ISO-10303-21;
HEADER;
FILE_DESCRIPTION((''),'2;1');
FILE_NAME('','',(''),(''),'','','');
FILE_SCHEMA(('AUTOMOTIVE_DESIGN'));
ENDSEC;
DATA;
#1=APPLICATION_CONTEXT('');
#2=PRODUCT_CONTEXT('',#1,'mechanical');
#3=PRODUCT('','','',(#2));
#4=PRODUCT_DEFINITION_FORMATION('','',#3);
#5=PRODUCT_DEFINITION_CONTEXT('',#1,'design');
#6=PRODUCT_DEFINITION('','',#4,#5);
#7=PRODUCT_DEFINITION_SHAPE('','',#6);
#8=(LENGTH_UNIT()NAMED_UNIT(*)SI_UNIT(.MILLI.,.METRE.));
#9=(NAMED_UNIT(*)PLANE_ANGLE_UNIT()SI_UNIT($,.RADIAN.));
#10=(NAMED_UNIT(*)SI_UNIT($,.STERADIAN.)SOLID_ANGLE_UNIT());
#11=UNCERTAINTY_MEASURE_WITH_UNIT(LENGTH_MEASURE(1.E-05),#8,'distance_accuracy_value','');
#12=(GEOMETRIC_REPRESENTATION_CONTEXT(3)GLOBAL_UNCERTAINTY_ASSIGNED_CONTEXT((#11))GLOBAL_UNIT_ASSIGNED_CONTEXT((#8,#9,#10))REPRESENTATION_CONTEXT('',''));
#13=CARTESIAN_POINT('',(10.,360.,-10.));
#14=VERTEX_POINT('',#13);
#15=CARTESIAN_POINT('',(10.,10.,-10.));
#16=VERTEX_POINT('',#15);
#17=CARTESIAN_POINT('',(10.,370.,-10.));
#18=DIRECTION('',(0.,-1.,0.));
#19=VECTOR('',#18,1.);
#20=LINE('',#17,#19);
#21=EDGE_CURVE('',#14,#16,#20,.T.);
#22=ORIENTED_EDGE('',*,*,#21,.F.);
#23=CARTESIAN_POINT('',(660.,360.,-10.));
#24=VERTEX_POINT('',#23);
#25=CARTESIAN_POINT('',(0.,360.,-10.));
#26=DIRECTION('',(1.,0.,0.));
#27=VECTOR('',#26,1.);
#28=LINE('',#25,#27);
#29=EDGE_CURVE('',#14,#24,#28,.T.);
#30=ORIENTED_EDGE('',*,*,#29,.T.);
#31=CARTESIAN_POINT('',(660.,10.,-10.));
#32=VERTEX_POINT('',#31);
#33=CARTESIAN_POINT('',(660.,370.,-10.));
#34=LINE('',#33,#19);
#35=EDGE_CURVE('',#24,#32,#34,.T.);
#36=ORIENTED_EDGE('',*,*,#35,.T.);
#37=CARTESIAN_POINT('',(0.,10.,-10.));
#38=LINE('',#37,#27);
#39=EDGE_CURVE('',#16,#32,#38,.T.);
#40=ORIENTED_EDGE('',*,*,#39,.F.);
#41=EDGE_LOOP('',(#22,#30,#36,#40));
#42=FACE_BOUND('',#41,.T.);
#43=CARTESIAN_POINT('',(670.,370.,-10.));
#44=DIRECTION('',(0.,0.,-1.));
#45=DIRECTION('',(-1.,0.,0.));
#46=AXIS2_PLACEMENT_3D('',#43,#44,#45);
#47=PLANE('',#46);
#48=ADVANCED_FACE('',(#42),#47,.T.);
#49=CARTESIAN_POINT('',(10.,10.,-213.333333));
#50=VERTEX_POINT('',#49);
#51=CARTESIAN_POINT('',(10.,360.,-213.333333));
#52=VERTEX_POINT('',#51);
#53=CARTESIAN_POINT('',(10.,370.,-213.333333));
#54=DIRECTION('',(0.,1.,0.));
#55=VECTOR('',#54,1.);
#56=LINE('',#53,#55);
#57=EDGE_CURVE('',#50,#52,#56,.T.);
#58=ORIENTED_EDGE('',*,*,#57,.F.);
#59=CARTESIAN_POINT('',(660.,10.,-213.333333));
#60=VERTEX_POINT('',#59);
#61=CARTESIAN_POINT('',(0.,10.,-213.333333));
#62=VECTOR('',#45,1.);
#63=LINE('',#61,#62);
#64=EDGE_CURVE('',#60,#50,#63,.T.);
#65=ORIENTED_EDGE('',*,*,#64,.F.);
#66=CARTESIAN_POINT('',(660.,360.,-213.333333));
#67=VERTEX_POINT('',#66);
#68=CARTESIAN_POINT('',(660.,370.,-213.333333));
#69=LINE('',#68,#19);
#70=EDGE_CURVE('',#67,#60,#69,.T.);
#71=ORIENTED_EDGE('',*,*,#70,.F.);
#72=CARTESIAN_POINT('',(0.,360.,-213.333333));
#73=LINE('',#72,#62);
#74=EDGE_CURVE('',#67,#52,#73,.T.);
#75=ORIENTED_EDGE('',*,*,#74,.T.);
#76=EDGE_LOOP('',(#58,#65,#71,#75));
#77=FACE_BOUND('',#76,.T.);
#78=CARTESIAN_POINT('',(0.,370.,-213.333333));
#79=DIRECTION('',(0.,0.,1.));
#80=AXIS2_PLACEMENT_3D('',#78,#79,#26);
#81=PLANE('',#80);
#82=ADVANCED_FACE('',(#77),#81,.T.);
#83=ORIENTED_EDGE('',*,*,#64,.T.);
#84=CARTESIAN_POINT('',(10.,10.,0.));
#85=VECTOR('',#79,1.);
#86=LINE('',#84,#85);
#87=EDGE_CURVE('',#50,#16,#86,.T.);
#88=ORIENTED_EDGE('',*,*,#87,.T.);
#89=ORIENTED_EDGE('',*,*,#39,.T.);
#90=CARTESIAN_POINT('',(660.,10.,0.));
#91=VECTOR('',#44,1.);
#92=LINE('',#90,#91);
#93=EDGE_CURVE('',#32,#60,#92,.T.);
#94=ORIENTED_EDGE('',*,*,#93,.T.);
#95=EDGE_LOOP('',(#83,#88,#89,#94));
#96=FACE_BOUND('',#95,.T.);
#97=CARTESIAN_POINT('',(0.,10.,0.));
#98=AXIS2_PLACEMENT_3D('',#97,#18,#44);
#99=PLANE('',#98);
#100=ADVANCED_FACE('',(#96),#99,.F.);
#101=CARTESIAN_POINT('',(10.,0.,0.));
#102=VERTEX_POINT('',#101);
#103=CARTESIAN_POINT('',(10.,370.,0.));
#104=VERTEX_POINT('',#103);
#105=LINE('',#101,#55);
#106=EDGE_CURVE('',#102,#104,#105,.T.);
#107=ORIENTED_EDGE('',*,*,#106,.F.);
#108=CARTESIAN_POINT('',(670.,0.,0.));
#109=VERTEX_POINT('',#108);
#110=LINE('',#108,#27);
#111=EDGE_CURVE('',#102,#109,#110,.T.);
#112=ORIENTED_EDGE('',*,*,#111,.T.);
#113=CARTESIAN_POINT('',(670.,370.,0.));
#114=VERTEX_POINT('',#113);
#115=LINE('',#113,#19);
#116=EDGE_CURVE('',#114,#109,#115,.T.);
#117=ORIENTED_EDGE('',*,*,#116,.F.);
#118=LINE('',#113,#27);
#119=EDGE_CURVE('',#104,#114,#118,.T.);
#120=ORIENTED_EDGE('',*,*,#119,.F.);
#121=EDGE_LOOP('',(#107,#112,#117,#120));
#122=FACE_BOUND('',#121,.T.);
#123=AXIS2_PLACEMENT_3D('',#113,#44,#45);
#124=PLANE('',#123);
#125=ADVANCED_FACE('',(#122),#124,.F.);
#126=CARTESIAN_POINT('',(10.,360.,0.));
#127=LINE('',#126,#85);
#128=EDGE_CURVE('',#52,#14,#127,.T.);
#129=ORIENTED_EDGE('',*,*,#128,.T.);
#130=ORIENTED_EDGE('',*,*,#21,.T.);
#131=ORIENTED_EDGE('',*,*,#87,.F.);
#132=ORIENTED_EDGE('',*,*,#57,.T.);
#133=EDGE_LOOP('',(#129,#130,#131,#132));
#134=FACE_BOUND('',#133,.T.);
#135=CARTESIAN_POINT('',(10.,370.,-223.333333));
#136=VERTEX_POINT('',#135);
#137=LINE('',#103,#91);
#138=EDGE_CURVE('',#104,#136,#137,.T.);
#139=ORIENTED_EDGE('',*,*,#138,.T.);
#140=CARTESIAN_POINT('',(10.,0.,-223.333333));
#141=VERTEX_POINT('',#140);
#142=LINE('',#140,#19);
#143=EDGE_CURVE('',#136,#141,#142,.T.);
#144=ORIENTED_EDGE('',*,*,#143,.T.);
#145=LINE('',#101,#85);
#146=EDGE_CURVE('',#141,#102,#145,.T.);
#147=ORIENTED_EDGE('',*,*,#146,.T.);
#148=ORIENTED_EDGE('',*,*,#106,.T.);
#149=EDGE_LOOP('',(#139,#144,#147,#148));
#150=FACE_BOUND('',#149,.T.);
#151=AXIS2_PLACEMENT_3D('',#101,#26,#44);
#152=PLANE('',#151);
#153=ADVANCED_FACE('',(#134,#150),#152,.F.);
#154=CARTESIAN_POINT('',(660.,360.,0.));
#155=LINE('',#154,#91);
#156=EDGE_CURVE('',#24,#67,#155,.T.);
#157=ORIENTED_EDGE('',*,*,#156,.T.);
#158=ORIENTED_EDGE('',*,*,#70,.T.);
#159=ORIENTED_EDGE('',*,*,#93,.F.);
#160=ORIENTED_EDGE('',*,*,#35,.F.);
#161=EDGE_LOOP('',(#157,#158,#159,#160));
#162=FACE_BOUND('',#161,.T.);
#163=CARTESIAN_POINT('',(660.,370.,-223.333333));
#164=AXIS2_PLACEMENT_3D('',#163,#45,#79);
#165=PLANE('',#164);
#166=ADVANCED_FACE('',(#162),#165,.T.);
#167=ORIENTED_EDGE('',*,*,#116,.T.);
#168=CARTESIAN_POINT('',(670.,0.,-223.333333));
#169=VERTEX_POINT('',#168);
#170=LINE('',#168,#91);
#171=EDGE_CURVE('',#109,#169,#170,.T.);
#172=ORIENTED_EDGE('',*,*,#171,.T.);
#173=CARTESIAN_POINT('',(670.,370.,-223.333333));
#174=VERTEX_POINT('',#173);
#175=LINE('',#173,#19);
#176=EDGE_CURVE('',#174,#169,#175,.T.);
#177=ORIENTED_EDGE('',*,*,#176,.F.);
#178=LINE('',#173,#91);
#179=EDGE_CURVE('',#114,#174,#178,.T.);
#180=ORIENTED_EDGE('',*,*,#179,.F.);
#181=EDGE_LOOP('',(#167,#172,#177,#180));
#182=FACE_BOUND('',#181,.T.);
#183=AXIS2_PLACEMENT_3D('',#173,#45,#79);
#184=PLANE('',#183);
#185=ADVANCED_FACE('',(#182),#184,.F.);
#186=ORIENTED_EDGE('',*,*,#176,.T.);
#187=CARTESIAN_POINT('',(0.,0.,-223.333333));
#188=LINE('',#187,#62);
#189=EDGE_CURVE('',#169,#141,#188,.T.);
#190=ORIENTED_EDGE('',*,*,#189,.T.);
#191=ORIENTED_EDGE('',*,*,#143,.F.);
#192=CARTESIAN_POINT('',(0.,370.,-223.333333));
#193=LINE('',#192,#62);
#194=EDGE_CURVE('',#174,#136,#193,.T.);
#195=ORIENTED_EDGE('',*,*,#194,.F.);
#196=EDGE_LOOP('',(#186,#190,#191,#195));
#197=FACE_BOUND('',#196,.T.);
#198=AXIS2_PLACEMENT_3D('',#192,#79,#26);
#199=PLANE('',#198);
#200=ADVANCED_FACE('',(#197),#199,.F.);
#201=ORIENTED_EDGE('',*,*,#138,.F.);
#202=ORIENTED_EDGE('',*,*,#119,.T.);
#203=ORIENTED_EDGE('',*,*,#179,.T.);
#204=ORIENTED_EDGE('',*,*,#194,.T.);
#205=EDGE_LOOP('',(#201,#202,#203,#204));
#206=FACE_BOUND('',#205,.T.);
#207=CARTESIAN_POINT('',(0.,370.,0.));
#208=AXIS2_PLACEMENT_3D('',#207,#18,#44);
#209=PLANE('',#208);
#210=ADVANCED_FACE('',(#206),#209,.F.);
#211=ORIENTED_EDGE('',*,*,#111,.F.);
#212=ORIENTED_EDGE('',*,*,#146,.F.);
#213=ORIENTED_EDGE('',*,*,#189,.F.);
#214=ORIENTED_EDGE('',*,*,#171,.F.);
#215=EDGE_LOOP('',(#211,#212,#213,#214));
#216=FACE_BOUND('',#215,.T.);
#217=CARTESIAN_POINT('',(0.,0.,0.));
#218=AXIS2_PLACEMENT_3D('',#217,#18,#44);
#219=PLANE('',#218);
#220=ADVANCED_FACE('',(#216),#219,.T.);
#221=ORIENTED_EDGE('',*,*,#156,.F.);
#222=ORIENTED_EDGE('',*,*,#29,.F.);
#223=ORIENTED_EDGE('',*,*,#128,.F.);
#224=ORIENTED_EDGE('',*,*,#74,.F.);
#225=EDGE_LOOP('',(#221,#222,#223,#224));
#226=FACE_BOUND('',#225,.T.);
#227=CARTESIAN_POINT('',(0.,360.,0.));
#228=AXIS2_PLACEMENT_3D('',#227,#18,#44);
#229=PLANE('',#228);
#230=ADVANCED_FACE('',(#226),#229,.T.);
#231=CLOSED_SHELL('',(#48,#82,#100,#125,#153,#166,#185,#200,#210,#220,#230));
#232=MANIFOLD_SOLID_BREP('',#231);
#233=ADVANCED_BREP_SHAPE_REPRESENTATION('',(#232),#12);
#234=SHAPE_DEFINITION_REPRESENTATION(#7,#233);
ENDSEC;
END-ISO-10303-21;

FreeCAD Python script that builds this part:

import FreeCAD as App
import Part
import Sketcher


def faces_at(feature, points):
    """Names of the faces that lie closest to the given points."""
    faces = feature.Shape.Faces
    near = lambda p: min(range(len(faces)), key=lambda i: faces[i].distToShape(Part.Vertex(*p))[0])
    return sorted({f"Face{near(p) + 1}" for p in points})

doc = App.newDocument("Part")
body = doc.addObject("PartDesign::Body", "Body")

# Sketch on XZ plane
sketch1 = doc.addObject("Sketcher::SketchObject", "Sketch")
body.addObject(sketch1)
sketch1.AttachmentSupport = (doc.XZ_Plane, [""])
sketch1.MapMode = "FlatFace"
sketch1.addGeometry(Part.LineSegment(App.Vector(0, -223.333333, 0), App.Vector(0, 0, 0)), False)
sketch1.addGeometry(Part.LineSegment(App.Vector(0, 0, 0), App.Vector(670, 0, 0)), False)
sketch1.addGeometry(Part.LineSegment(App.Vector(670, 0, 0), App.Vector(670, -223.333333, 0)), False)
sketch1.addGeometry(Part.LineSegment(App.Vector(670, -223.333333, 0), App.Vector(0, -223.333333, 0)), False)
sketch1.addConstraint(Sketcher.Constraint("Coincident", 0, 2, 1, 1))
sketch1.addConstraint(Sketcher.Constraint("Coincident", 1, 2, 2, 1))
sketch1.addConstraint(Sketcher.Constraint("Coincident", 2, 2, 3, 1))
sketch1.addConstraint(Sketcher.Constraint("Coincident", 3, 2, 0, 1))
sketch1.addConstraint(Sketcher.Constraint("Vertical", 0))
sketch1.addConstraint(Sketcher.Constraint("Horizontal", 1))
sketch1.addConstraint(Sketcher.Constraint("Vertical", 2))
sketch1.addConstraint(Sketcher.Constraint("Horizontal", 3))
sketch1.addConstraint(Sketcher.Constraint("Coincident", 0, 2, -1, 1))
sketch1.addConstraint(Sketcher.Constraint("DistanceX", 1, 1, 1, 2, 670.0))
sketch1.addConstraint(Sketcher.Constraint("DistanceY", 0, 1, 0, 2, 223.333333))
pad1 = doc.addObject("PartDesign::Pad", "Pad")
body.addObject(pad1)
pad1.Profile = sketch1
pad1.Length = 370
pad1.Reversed = True
doc.recompute()

thickness = doc.addObject("PartDesign::Thickness", "Thickness")
body.addObject(thickness)
thickness.Base = (pad1, faces_at(pad1, [(0, 185, -111.667)]))
thickness.Value = 10
thickness.Reversed = True
thickness.Join = "Intersection"

# Sketch on YZ plane
sketch2 = doc.addObject("Sketcher::SketchObject", "Sketch001")
body.addObject(sketch2)
sketch2.AttachmentSupport = (doc.YZ_Plane, [""])
sketch2.MapMode = "FlatFace"
sketch2.addGeometry(Part.LineSegment(App.Vector(365, -218.333333, 0), App.Vector(5, -218.333333, 0)), False)
sketch2.addGeometry(Part.LineSegment(App.Vector(5, -218.333333, 0), App.Vector(5, -5, 0)), False)
sketch2.addGeometry(Part.LineSegment(App.Vector(5, -5, 0), App.Vector(365, -5, 0)), False)
sketch2.addGeometry(Part.LineSegment(App.Vector(365, -5, 0), App.Vector(365, -218.333333, 0)), False)
sketch2.addConstraint(Sketcher.Constraint("Coincident", 0, 2, 1, 1))
sketch2.addConstraint(Sketcher.Constraint("Coincident", 1, 2, 2, 1))
sketch2.addConstraint(Sketcher.Constraint("Coincident", 2, 2, 3, 1))
sketch2.addConstraint(Sketcher.Constraint("Coincident", 3, 2, 0, 1))
sketch2.addConstraint(Sketcher.Constraint("Horizontal", 0))
sketch2.addConstraint(Sketcher.Constraint("Vertical", 1))
sketch2.addConstraint(Sketcher.Constraint("Horizontal", 2))
sketch2.addConstraint(Sketcher.Constraint("Vertical", 3))
sketch2.addConstraint(Sketcher.Constraint("DistanceX", 0, 2, 0, 1, 360.0))
sketch2.addConstraint(Sketcher.Constraint("DistanceX", -1, 1, 0, 2, 5.0))
sketch2.addConstraint(Sketcher.Constraint("DistanceY", 1, 2, -1, 1, 5.0))
sketch2.addConstraint(Sketcher.Constraint("DistanceY", 1, 1, 1, 2, 213.333333))
pocket1 = doc.addObject("PartDesign::Pocket", "Pocket")
body.addObject(pocket1)
pocket1.Profile = sketch2
pocket1.Length = 10
pocket1.Reversed = True

# Sketch on YZ plane
sketch3 = doc.addObject("Sketcher::SketchObject", "Sketch002")
body.addObject(sketch3)
sketch3.AttachmentSupport = (doc.YZ_Plane, [""])
sketch3.MapMode = "FlatFace"
sketch3.addGeometry(Part.LineSegment(App.Vector(370, -223.333333, 0), App.Vector(0, -223.333333, 0)), False)
sketch3.addGeometry(Part.LineSegment(App.Vector(0, -223.333333, 0), App.Vector(0, 0, 0)), False)
sketch3.addGeometry(Part.LineSegment(App.Vector(0, 0, 0), App.Vector(370, 0, 0)), False)
sketch3.addGeometry(Part.LineSegment(App.Vector(370, 0, 0), App.Vector(370, -223.333333, 0)), False)
sketch3.addConstraint(Sketcher.Constraint("Coincident", 0, 2, 1, 1))
sketch3.addConstraint(Sketcher.Constraint("Coincident", 1, 2, 2, 1))
sketch3.addConstraint(Sketcher.Constraint("Coincident", 2, 2, 3, 1))
sketch3.addConstraint(Sketcher.Constraint("Coincident", 3, 2, 0, 1))
sketch3.addConstraint(Sketcher.Constraint("Horizontal", 0))
sketch3.addConstraint(Sketcher.Constraint("Vertical", 1))
sketch3.addConstraint(Sketcher.Constraint("Horizontal", 2))
sketch3.addConstraint(Sketcher.Constraint("Vertical", 3))
sketch3.addConstraint(Sketcher.Constraint("Coincident", 1, 2, -1, 1))
sketch3.addConstraint(Sketcher.Constraint("DistanceX", 0, 2, 0, 1, 370.0))
sketch3.addConstraint(Sketcher.Constraint("DistanceY", 1, 1, 1, 2, 223.333333))
pocket2 = doc.addObject("PartDesign::Pocket", "Pocket001")
body.addObject(pocket2)
pocket2.Profile = sketch3
pocket2.Length = 10
pocket2.Reversed = True

doc.recompute()
